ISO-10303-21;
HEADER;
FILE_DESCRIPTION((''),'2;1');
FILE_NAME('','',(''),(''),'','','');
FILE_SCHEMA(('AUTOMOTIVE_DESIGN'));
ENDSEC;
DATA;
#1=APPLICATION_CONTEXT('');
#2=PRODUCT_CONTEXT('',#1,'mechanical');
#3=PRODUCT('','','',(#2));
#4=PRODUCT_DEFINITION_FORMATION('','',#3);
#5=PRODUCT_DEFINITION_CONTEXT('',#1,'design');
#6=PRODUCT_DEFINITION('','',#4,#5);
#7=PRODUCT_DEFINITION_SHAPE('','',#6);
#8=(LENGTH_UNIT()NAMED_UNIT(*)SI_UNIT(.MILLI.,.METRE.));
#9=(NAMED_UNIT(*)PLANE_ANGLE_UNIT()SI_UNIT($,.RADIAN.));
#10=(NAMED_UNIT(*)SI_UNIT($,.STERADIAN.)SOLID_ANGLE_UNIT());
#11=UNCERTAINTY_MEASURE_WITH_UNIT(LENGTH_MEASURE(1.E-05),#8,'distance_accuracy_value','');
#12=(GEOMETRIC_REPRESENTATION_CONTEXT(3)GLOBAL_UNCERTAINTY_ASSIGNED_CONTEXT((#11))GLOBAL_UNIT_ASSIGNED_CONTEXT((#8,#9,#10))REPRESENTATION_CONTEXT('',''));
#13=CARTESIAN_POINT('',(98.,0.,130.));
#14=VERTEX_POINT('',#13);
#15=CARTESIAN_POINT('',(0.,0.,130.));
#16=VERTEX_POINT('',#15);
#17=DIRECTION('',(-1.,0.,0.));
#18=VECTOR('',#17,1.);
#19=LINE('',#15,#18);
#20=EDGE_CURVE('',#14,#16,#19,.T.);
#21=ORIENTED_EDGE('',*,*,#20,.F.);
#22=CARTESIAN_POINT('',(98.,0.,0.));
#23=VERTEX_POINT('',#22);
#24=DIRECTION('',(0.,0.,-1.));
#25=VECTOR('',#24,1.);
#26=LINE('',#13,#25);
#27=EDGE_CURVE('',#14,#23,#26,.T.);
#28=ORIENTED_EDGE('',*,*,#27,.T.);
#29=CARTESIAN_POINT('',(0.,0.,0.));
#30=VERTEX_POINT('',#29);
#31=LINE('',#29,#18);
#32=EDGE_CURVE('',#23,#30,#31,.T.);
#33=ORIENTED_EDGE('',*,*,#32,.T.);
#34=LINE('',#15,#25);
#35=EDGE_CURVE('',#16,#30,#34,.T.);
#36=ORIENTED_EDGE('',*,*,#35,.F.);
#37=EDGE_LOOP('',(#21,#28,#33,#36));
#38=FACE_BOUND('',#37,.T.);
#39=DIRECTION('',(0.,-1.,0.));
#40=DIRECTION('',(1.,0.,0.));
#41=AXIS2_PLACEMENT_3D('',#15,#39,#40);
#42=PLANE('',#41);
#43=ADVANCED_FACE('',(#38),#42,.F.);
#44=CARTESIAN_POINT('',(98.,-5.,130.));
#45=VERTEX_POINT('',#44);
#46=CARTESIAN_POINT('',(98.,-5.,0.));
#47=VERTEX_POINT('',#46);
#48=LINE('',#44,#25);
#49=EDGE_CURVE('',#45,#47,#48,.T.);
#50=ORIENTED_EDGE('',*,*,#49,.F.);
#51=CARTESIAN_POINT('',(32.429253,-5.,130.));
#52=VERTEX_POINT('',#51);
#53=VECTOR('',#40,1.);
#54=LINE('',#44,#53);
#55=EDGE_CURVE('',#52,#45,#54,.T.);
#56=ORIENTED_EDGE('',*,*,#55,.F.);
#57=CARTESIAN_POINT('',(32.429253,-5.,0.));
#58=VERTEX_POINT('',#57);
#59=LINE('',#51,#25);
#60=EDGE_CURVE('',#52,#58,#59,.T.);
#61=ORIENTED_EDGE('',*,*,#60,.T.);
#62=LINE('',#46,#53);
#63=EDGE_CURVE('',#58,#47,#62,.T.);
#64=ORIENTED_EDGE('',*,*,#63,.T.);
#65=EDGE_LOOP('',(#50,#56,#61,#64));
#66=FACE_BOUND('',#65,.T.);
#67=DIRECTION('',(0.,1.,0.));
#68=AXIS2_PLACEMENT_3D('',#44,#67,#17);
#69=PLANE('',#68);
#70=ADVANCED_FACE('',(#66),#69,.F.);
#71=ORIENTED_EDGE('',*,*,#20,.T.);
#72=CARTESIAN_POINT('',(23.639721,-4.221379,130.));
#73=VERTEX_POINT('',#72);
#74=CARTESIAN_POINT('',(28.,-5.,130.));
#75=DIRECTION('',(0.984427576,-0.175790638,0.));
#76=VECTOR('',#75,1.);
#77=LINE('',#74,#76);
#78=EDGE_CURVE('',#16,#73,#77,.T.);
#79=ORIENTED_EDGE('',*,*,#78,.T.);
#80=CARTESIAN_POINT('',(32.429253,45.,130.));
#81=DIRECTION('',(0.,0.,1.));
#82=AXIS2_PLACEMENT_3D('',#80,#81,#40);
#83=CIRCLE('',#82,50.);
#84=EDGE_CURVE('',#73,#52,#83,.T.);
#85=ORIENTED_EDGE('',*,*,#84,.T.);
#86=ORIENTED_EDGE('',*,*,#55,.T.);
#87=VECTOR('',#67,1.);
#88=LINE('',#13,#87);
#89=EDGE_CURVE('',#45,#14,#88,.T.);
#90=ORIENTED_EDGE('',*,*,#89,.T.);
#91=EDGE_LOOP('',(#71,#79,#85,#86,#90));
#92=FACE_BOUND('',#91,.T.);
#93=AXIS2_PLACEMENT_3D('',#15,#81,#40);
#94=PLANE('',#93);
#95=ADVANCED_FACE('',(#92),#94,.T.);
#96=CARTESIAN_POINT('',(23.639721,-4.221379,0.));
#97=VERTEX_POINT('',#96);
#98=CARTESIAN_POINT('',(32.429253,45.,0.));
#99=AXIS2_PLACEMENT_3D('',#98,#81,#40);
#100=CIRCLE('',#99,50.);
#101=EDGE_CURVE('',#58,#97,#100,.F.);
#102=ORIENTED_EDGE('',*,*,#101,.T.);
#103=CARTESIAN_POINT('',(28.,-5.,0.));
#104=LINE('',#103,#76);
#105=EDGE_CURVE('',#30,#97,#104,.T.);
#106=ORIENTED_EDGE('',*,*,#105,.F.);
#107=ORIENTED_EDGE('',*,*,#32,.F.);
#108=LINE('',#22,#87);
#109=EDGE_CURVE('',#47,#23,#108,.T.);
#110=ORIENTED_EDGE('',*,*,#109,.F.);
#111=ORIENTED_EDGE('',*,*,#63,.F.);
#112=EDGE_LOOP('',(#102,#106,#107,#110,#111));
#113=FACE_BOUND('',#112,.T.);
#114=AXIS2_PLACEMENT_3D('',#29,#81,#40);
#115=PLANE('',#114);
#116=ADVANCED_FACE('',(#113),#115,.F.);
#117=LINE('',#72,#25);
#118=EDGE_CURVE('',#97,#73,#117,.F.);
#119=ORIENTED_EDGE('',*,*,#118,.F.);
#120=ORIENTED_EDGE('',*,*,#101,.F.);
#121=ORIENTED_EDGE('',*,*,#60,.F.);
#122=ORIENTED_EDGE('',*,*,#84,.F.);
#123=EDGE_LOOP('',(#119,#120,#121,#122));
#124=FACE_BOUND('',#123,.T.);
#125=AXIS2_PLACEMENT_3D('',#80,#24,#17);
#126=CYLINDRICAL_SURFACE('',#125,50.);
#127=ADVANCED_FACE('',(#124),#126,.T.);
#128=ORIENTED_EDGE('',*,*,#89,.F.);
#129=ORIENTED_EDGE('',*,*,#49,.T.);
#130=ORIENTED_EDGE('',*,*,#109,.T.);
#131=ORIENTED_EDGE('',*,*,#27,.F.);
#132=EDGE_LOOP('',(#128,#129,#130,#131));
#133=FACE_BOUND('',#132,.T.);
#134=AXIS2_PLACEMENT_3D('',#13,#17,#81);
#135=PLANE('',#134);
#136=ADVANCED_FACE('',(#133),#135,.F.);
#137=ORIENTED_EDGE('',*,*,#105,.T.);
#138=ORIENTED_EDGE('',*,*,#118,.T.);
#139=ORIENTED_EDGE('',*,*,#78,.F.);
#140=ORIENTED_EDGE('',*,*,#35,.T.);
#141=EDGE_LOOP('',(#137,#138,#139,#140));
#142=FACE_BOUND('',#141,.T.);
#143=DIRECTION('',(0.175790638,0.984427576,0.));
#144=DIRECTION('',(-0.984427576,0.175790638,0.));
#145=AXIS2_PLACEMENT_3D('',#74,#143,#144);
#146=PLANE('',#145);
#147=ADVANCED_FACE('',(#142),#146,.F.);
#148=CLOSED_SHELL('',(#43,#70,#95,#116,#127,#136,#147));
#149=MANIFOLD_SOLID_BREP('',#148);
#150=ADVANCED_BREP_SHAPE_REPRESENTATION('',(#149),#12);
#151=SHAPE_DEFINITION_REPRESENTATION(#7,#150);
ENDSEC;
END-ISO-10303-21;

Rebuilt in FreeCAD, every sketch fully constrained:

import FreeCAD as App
import Part
import Sketcher
from FreeCAD import Vector


def edges_at(feature, points):
    """Names of the edges that pass closest to the given points."""
    edges = feature.Shape.Edges
    near = lambda p: min(range(len(edges)), key=lambda i: edges[i].distToShape(Part.Vertex(*p))[0])
    return sorted({f"Edge{near(p) + 1}" for p in points})

doc = App.newDocument("Part")
params = doc.addObject("Spreadsheet::Sheet", "Params")
for row, (alias, value) in enumerate([
    ("sketch1_width", "98 mm"),
    ("sketch1_width2", "70 mm"),
    ("sketch1_height", "5 mm"),
    ("pad1_length", "130 mm"),
    ("fillet_radius", "50 mm"),
], start=1):
    params.set(f"A{row}", alias)
    params.set(f"B{row}", "=" + value)
    params.setAlias(f"B{row}", alias)

body = doc.addObject("PartDesign::Body", "Body")

# Sketch on XY plane
sketch1 = body.newObject("Sketcher::SketchObject", "Sketch")
sketch1.AttachmentSupport = (doc.getObject("XY_Plane"), [""])
sketch1.MapMode = "FlatFace"
sketch1.addGeometry(Part.LineSegment(Vector(98, 0, 0), Vector(0, 0, 0)), False)
sketch1.addGeometry(Part.LineSegment(Vector(0, 0, 0), Vector(28, -5, 0)), False)
sketch1.addGeometry(Part.LineSegment(Vector(28, -5, 0), Vector(98, -5, 0)), False)
sketch1.addGeometry(Part.LineSegment(Vector(98, -5, 0), Vector(98, 0, 0)), False)
sketch1.addConstraint(Sketcher.Constraint("Coincident", 0, 2, 1, 1))
sketch1.addConstraint(Sketcher.Constraint("Coincident", 1, 2, 2, 1))
sketch1.addConstraint(Sketcher.Constraint("Coincident", 2, 2, 3, 1))
sketch1.addConstraint(Sketcher.Constraint("Coincident", 3, 2, 0, 1))
sketch1.addConstraint(Sketcher.Constraint("Horizontal", 0))
sketch1.addConstraint(Sketcher.Constraint("Horizontal", 2))
sketch1.addConstraint(Sketcher.Constraint("Vertical", 3))
sketch1.addConstraint(Sketcher.Constraint("Coincident", 0, 2, -1, 1))
sketch1.addConstraint(Sketcher.Constraint("DistanceX", 0, 2, 0, 1, 98.0))
sketch1.addConstraint(Sketcher.Constraint("DistanceX", 2, 1, 2, 2, 70.0))
sketch1.addConstraint(Sketcher.Constraint("DistanceY", 3, 1, 3, 2, 5.0))
sketch1.setExpression("Constraints[8]", "Params.sketch1_width")
sketch1.setExpression("Constraints[9]", "Params.sketch1_width2")
sketch1.setExpression("Constraints[10]", "Params.sketch1_height")
pad1 = body.newObject("PartDesign::Pad", "Pad")
pad1.Profile = sketch1
pad1.setExpression("Length", "Params.pad1_length")
doc.recompute()

fillet = body.newObject("PartDesign::Fillet", "Fillet")
fillet.Base = (pad1, edges_at(pad1, [(28, -5, 65)]))
fillet.setExpression("Radius", "Params.fillet_radius")

doc.recompute()
